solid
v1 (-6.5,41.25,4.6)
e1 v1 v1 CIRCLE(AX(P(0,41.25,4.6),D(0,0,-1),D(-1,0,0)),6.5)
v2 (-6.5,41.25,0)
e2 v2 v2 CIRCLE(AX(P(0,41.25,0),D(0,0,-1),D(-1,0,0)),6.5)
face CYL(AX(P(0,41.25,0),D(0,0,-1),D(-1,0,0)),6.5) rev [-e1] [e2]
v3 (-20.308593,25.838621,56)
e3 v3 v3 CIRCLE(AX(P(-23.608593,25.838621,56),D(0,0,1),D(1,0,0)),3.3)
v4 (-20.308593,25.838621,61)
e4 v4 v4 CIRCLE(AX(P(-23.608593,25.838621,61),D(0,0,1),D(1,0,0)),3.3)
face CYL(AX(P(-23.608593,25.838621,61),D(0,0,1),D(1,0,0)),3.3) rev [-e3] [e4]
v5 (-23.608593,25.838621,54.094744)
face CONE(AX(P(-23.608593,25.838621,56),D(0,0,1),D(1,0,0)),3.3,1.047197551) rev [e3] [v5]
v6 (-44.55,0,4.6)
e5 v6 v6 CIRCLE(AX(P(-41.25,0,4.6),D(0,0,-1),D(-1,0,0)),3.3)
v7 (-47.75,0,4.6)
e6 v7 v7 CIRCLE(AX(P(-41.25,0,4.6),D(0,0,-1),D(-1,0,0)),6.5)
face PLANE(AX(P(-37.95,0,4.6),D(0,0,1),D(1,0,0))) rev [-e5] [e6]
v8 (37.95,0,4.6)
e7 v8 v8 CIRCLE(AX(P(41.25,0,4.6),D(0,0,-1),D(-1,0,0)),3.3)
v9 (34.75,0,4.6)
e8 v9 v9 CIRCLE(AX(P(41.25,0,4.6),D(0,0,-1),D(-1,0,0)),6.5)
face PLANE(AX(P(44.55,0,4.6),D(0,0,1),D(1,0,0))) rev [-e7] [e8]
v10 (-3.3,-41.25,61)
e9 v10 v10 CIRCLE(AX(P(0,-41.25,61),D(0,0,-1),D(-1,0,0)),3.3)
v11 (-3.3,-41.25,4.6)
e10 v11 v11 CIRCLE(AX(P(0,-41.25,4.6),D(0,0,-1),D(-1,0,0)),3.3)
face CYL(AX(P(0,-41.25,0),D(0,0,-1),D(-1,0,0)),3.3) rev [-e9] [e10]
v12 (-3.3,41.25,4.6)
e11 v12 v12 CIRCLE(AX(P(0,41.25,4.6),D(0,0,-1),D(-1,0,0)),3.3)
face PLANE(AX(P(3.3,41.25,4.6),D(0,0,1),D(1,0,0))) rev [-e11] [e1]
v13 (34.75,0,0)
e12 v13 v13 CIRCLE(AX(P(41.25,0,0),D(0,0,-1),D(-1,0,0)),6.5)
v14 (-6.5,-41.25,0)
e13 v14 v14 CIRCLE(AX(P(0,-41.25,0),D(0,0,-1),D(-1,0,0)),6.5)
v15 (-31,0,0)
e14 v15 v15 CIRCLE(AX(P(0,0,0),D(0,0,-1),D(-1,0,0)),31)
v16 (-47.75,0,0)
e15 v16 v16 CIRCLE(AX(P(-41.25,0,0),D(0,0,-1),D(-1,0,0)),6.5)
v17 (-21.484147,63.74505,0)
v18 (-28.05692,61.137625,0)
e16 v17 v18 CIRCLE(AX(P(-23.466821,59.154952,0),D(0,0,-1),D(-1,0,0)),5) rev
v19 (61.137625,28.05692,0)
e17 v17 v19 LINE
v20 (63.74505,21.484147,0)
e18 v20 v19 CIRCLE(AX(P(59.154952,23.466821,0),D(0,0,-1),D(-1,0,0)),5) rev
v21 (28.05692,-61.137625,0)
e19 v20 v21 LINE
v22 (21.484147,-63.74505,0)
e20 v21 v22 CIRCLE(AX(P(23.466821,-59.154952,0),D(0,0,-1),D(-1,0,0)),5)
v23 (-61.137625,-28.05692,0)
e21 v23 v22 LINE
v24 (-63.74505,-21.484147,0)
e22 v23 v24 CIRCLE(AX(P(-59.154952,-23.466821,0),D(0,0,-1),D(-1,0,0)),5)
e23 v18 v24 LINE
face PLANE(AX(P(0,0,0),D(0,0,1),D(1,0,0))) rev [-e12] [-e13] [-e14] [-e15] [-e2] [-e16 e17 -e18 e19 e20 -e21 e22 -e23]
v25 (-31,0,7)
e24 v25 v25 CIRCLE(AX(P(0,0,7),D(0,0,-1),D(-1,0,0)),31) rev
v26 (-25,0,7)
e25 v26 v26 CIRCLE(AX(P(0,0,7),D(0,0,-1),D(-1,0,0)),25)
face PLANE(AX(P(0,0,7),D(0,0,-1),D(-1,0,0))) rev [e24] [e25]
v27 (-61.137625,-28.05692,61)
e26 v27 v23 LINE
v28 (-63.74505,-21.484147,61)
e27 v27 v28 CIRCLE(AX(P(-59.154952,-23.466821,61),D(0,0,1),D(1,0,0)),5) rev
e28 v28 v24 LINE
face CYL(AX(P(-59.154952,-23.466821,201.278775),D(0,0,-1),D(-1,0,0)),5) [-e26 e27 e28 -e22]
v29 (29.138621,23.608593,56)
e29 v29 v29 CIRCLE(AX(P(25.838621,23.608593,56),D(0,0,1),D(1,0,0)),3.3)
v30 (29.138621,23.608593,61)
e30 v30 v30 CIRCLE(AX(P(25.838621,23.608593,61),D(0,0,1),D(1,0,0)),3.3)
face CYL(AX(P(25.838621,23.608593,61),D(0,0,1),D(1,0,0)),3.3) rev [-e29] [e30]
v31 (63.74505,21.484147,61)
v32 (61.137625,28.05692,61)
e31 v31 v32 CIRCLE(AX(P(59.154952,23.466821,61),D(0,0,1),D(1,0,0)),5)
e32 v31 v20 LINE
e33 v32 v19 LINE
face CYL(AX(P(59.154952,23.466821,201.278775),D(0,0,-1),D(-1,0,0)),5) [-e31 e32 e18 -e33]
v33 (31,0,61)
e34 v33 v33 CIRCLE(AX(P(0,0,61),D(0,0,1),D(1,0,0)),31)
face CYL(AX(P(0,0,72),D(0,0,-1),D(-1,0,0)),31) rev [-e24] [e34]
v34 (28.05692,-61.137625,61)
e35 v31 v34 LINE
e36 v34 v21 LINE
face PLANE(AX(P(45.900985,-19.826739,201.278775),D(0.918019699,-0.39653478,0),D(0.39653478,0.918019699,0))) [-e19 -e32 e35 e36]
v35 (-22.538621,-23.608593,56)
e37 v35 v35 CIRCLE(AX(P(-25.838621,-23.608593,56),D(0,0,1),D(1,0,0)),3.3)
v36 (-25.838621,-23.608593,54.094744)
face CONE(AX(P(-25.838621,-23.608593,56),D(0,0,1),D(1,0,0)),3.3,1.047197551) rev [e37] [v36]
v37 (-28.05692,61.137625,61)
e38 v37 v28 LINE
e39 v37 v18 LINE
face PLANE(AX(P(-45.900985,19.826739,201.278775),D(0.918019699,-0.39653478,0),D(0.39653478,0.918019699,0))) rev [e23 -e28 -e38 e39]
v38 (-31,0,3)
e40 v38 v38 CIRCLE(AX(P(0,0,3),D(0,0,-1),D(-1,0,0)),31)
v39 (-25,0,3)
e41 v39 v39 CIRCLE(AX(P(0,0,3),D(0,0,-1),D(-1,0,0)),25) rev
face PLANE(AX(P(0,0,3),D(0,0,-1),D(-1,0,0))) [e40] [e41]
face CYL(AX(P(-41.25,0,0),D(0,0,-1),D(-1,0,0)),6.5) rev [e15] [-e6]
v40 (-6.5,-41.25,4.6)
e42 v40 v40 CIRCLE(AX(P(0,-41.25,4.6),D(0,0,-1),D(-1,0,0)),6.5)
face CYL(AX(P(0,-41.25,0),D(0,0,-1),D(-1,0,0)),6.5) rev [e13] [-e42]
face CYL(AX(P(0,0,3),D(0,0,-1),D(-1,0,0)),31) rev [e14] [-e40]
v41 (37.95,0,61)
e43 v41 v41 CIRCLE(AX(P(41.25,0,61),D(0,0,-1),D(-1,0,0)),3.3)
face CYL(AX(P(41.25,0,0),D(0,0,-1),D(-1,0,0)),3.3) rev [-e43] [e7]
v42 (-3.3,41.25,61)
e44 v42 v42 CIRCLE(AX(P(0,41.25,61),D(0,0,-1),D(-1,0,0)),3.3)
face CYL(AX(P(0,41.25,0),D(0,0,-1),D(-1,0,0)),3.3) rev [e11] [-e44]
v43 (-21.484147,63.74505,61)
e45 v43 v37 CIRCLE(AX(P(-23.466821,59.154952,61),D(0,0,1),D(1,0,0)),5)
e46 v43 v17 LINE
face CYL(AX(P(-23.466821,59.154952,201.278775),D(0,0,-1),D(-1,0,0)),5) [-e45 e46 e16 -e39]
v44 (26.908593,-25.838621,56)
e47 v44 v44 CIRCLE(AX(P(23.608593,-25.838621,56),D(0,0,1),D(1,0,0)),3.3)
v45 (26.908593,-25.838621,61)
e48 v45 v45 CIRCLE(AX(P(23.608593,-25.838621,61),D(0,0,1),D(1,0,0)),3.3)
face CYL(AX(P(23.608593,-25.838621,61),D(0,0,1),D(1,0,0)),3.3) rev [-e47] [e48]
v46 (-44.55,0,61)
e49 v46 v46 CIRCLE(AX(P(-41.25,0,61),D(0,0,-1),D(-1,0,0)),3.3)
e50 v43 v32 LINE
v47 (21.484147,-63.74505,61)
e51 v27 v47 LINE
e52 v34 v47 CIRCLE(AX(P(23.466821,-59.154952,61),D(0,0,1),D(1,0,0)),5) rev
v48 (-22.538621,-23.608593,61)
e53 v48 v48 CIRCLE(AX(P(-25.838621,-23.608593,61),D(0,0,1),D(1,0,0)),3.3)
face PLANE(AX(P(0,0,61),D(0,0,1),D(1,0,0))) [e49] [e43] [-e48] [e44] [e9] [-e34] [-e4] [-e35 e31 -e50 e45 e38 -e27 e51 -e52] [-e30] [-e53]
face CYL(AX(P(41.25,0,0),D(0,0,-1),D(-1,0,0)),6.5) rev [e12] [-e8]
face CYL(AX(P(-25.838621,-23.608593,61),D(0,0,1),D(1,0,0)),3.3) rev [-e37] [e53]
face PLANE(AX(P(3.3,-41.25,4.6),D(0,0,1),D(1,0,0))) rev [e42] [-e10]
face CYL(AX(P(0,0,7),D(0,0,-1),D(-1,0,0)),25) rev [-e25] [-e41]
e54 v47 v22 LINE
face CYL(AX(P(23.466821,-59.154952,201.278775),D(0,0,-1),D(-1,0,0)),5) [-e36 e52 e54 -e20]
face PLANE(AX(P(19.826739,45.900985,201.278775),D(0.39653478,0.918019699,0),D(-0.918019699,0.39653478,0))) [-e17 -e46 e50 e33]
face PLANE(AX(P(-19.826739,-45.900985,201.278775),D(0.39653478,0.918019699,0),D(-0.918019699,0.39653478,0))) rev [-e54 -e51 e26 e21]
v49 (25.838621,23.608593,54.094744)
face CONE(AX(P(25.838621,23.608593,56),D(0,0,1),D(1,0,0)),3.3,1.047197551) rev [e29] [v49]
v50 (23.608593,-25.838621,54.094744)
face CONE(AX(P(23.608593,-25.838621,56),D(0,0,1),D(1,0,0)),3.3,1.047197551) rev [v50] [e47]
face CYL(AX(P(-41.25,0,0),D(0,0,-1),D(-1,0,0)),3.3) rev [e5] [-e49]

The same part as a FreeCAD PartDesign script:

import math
import FreeCAD as App
import Part
import Sketcher
Q = App.Units.Quantity

doc = App.newDocument("Part")
body = doc.addObject("PartDesign::Body", "Body")

# Sketch on XY plane
sketch1 = doc.addObject("Sketcher::SketchObject", "Sketch")
body.addObject(sketch1)
sketch1.AttachmentSupport = (doc.XY_Plane, [""])
sketch1.MapMode = "FlatFace"
sketch1.addGeometry(Part.Circle(App.Vector(0, 0, 0), App.Vector(0, 0, 1), 50), False)
sketch1.addConstraint([
    Sketcher.Constraint("Coincident", 0, 3, -1, 1),
    Sketcher.Constraint("Diameter", 0, Q("100 mm")),
])
pad1 = doc.addObject("PartDesign::Pad", "Pad")
body.addObject(pad1)
pad1.Profile = sketch1
pad1.Length = 61

# Sketch on XY plane
sketch2 = doc.addObject("Sketcher::SketchObject", "Sketch001")
body.addObject(sketch2)
sketch2.AttachmentSupport = (doc.XY_Plane, [""])
sketch2.MapMode = "FlatFace"
sketch2.addGeometry(Part.Circle(App.Vector(0, 0, 0), App.Vector(0, 0, 1), 31), False)
sketch2.addConstraint([
    Sketcher.Constraint("Coincident", 0, 3, -1, 1),
    Sketcher.Constraint("Diameter", 0, Q("62 mm")),
])
pocket1 = doc.addObject("PartDesign::Pocket", "Pocket")
body.addObject(pocket1)
pocket1.Profile = sketch2
pocket1.Length = 72
pocket1.Reversed = True

# Sketch on XY plane
sketch3 = doc.addObject("Sketcher::SketchObject", "Sketch002")
body.addObject(sketch3)
sketch3.AttachmentSupport = (doc.XY_Plane, [""])
sketch3.MapMode = "FlatFace"
sketch3.addGeometry([
    Part.Circle(App.Vector(-41.2, 0, 0), App.Vector(0, 0, 1), 3.3),
    Part.Circle(App.Vector(0, 41.2, 0), App.Vector(0, 0, 1), 3.3),
    Part.Circle(App.Vector(41.2, 0, 0), App.Vector(0, 0, 1), 3.3),
    Part.Circle(App.Vector(0, -41.2, 0), App.Vector(0, 0, 1), 3.3),
], False)
sketch3.addConstraint([
    Sketcher.Constraint("Equal", 0, 1),
    Sketcher.Constraint("Equal", 1, 2),
    Sketcher.Constraint("Equal", 2, 3),
    Sketcher.Constraint("Symmetric", 0, 3, 2, 3, -1, 1),
    Sketcher.Constraint("Symmetric", 1, 3, 3, 3, -1, 1),
    Sketcher.Constraint("PointOnObject", 0, 3, -1),
    Sketcher.Constraint("PointOnObject", 1, 3, -2),
    Sketcher.Constraint("Diameter", 0, Q("6.6 mm")),
    Sketcher.Constraint("DistanceX", 0, 3, 2, 3, Q("82.5 mm")),
    Sketcher.Constraint("DistanceY", 3, 3, 1, 3, Q("82.5 mm")),
])
doc.recompute()
hole = doc.addObject("PartDesign::Hole", "Hole")
body.addObject(hole)
hole.Profile = sketch3
hole.ThreadType = "None"
hole.Diameter = 6.6
hole.DepthType = "ThroughAll"
hole.HoleCutType = "Counterbore"
hole.HoleCutDiameter = 13
hole.HoleCutDepth = 4.6
hole.Reversed = True

# Sketch on XY plane
sketch4 = doc.addObject("Sketcher::SketchObject", "Sketch003")
body.addObject(sketch4)
sketch4.AttachmentSupport = (doc.XY_Plane, [""])
sketch4.MapMode = "FlatFace"
sketch4.AttachmentOffset = App.Placement(App.Vector(0, 0, 61), App.Rotation())
sketch4.addGeometry([
    Part.Circle(App.Vector(-23.6, 25.8, 0), App.Vector(0, 0, 1), 3.3),
    Part.Circle(App.Vector(-25.8, -23.6, 0), App.Vector(0, 0, 1), 3.3),
    Part.Circle(App.Vector(23.6, -25.8, 0), App.Vector(0, 0, 1), 3.3),
    Part.Circle(App.Vector(25.8, 23.6, 0), App.Vector(0, 0, 1), 3.3),
], False)
sketch4.addConstraint([
    Sketcher.Constraint("Equal", 0, 1),
    Sketcher.Constraint("Equal", 1, 2),
    Sketcher.Constraint("Equal", 2, 3),
    Sketcher.Constraint("Symmetric", 0, 3, 2, 3, -1, 1),
    Sketcher.Constraint("Symmetric", 1, 3, 3, 3, -1, 1),
    Sketcher.Constraint("Diameter", 0, Q("6.6 mm")),
    Sketcher.Constraint("DistanceY", -1, 1, 0, 3, Q("25.838621 mm")),
    Sketcher.Constraint("DistanceX", 1, 3, -1, 1, Q("25.838621 mm")),
    Sketcher.Constraint("DistanceX", 1, 3, 0, 3, Q("2.230028 mm")),
    Sketcher.Constraint("DistanceY", 2, 3, 1, 3, Q("2.230028 mm")),
])
doc.recompute()
hole2 = doc.addObject("PartDesign::Hole", "Hole001")
body.addObject(hole2)
hole2.Profile = sketch4
hole2.ThreadType = "None"
hole2.Diameter = 6.6
hole2.DepthType = "Dimension"
hole2.Depth = 5
hole2.DrillPoint = "Angled"
hole2.DrillPointAngle = 120

# Sketch on XY plane
sketch5 = doc.addObject("Sketcher::SketchObject", "Sketch004")
body.addObject(sketch5)
sketch5.AttachmentSupport = (doc.XY_Plane, [""])
sketch5.MapMode = "FlatFace"
sketch5.AttachmentOffset = App.Placement(App.Vector(0, 0, 61), App.Rotation())
sketch5.addGeometry([
    Part.LineSegment(App.Vector(-45.9, 19.8, 0), App.Vector(-28.1, 61.1, 0)),  # 0
    Part.ArcOfCircle(Part.Circle(App.Vector(-23.5, 59.2, 0), App.Vector(0, 0, 1), 5), math.radians(67), math.radians(157)),  # 1
    Part.LineSegment(App.Vector(-21.5, 63.7, 0), App.Vector(19.8, 45.9, 0)),  # 2
    Part.ArcOfCircle(Part.Circle(App.Vector(0, 0, 0), App.Vector(0, 0, 1), 50), math.radians(67), math.radians(157)),  # 3
    Part.LineSegment(App.Vector(-63.7, -21.5, 0), App.Vector(-45.9, 19.8, 0)),  # 4
    Part.ArcOfCircle(Part.Circle(App.Vector(0, 0, 0), App.Vector(0, 0, 1), 50), math.radians(157), math.radians(247)),  # 5
    Part.LineSegment(App.Vector(-19.8, -45.9, 0), App.Vector(-61.1, -28.1, 0)),  # 6
    Part.ArcOfCircle(Part.Circle(App.Vector(-59.2, -23.5, 0), App.Vector(0, 0, 1), 5), math.radians(157), math.radians(247)),  # 7
    Part.ArcOfCircle(Part.Circle(App.Vector(0, 0, 0), App.Vector(0, 0, 1), 50), math.radians(-23), math.radians(67)),  # 8
    Part.LineSegment(App.Vector(19.8, 45.9, 0), App.Vector(61.1, 28.1, 0)),  # 9
    Part.ArcOfCircle(Part.Circle(App.Vector(59.2, 23.5, 0), App.Vector(0, 0, 1), 5), math.radians(-23), math.radians(67)),  # 10
    Part.LineSegment(App.Vector(63.7, 21.5, 0), App.Vector(45.9, -19.8, 0)),  # 11
    Part.LineSegment(App.Vector(21.5, -63.7, 0), App.Vector(-19.8, -45.9, 0)),  # 12
    Part.ArcOfCircle(Part.Circle(App.Vector(0, 0, 0), App.Vector(0, 0, 1), 50), math.radians(-113), math.radians(-23)),  # 13
    Part.LineSegment(App.Vector(45.9, -19.8, 0), App.Vector(28.1, -61.1, 0)),  # 14
    Part.ArcOfCircle(Part.Circle(App.Vector(23.5, -59.2, 0), App.Vector(0, 0, 1), 5), math.radians(-113), math.radians(-23)),  # 15
], False)
sketch5.addConstraint([
    Sketcher.Constraint("Tangent", 0, 2, 1, 2),
    Sketcher.Constraint("Tangent", 1, 1, 2, 1),
    Sketcher.Constraint("Tangent", 2, 2, 3, 1),
    Sketcher.Constraint("Tangent", 3, 2, 0, 1),
    Sketcher.Constraint("Tangent", 4, 2, 5, 1),
    Sketcher.Constraint("Tangent", 5, 2, 6, 1),
    Sketcher.Constraint("Tangent", 6, 2, 7, 2),
    Sketcher.Constraint("Tangent", 7, 1, 4, 1),
    Sketcher.Constraint("Tangent", 8, 2, 9, 1),
    Sketcher.Constraint("Tangent", 9, 2, 10, 2),
    Sketcher.Constraint("Tangent", 10, 1, 11, 1),
    Sketcher.Constraint("Tangent", 11, 2, 8, 1),
    Sketcher.Constraint("Tangent", 12, 2, 13, 1),
    Sketcher.Constraint("Tangent", 13, 2, 14, 1),
    Sketcher.Constraint("Tangent", 14, 2, 15, 2),
    Sketcher.Constraint("Tangent", 15, 1, 12, 1),
    Sketcher.Constraint("Coincident", 3, 3, -1, 1),
    Sketcher.Constraint("Coincident", 5, 3, -1, 1),
    Sketcher.Constraint("Coincident", 8, 3, -1, 1),
    Sketcher.Constraint("Coincident", 13, 3, -1, 1),
    Sketcher.Constraint("Coincident", 4, 2, 3, 2),
    Sketcher.Constraint("Coincident", 8, 2, 2, 2),
    Sketcher.Constraint("Coincident", 12, 2, 5, 2),
    Sketcher.Constraint("Equal", 1, 7),
    Sketcher.Constraint("Equal", 7, 10),
    Sketcher.Constraint("Equal", 10, 15),
    Sketcher.Constraint("Symmetric", 7, 3, 10, 3, -1, 1),
    Sketcher.Constraint("Perpendicular", 0, 2),
    Sketcher.Constraint("Perpendicular", 12, 14),
    Sketcher.Constraint("Radius", 1, Q("5 mm")),
    Sketcher.Constraint("Radius", 3, Q("50 mm")),
    Sketcher.Constraint("DistanceX", 0, 2, 1, 3, Q("4.590098 mm")),
])
pad2 = doc.addObject("PartDesign::Pad", "Pad001")
body.addObject(pad2)
pad2.Profile = sketch5
pad2.Length = 61
pad2.Reversed = True

# Sketch on XY plane
sketch6 = doc.addObject("Sketcher::SketchObject", "Sketch005")
body.addObject(sketch6)
sketch6.AttachmentSupport = (doc.XY_Plane, [""])
sketch6.MapMode = "FlatFace"
sketch6.addGeometry([
    Part.Circle(App.Vector(0, 0, 0), App.Vector(0, 0, 1), 31),
    Part.Circle(App.Vector(0, 0, 0), App.Vector(0, 0, 1), 25),
], False)
sketch6.addConstraint([
    Sketcher.Constraint("Coincident", 0, 3, -1, 1),
    Sketcher.Constraint("Coincident", 1, 3, -1, 1),
    Sketcher.Constraint("Diameter", 0, Q("62 mm")),
    Sketcher.Constraint("Diameter", 1, Q("50 mm")),
])
pad3 = doc.addObject("PartDesign::Pad", "Pad002")
body.addObject(pad3)
pad3.Profile = sketch6
pad3.Length = 7

# Sketch on XY plane
sketch7 = doc.addObject("Sketcher::SketchObject", "Sketch006")
body.addObject(sketch7)
sketch7.AttachmentSupport = (doc.XY_Plane, [""])
sketch7.MapMode = "FlatFace"
sketch7.addGeometry(Part.Circle(App.Vector(0, 0, 0), App.Vector(0, 0, 1), 31), False)
sketch7.addConstraint([
    Sketcher.Constraint("Coincident", 0, 3, -1, 1),
    Sketcher.Constraint("Diameter", 0, Q("62 mm")),
])
pocket2 = doc.addObject("PartDesign::Pocket", "Pocket001")
body.addObject(pocket2)
pocket2.Profile = sketch7
pocket2.Length = 3
pocket2.Reversed = True

doc.recompute()
